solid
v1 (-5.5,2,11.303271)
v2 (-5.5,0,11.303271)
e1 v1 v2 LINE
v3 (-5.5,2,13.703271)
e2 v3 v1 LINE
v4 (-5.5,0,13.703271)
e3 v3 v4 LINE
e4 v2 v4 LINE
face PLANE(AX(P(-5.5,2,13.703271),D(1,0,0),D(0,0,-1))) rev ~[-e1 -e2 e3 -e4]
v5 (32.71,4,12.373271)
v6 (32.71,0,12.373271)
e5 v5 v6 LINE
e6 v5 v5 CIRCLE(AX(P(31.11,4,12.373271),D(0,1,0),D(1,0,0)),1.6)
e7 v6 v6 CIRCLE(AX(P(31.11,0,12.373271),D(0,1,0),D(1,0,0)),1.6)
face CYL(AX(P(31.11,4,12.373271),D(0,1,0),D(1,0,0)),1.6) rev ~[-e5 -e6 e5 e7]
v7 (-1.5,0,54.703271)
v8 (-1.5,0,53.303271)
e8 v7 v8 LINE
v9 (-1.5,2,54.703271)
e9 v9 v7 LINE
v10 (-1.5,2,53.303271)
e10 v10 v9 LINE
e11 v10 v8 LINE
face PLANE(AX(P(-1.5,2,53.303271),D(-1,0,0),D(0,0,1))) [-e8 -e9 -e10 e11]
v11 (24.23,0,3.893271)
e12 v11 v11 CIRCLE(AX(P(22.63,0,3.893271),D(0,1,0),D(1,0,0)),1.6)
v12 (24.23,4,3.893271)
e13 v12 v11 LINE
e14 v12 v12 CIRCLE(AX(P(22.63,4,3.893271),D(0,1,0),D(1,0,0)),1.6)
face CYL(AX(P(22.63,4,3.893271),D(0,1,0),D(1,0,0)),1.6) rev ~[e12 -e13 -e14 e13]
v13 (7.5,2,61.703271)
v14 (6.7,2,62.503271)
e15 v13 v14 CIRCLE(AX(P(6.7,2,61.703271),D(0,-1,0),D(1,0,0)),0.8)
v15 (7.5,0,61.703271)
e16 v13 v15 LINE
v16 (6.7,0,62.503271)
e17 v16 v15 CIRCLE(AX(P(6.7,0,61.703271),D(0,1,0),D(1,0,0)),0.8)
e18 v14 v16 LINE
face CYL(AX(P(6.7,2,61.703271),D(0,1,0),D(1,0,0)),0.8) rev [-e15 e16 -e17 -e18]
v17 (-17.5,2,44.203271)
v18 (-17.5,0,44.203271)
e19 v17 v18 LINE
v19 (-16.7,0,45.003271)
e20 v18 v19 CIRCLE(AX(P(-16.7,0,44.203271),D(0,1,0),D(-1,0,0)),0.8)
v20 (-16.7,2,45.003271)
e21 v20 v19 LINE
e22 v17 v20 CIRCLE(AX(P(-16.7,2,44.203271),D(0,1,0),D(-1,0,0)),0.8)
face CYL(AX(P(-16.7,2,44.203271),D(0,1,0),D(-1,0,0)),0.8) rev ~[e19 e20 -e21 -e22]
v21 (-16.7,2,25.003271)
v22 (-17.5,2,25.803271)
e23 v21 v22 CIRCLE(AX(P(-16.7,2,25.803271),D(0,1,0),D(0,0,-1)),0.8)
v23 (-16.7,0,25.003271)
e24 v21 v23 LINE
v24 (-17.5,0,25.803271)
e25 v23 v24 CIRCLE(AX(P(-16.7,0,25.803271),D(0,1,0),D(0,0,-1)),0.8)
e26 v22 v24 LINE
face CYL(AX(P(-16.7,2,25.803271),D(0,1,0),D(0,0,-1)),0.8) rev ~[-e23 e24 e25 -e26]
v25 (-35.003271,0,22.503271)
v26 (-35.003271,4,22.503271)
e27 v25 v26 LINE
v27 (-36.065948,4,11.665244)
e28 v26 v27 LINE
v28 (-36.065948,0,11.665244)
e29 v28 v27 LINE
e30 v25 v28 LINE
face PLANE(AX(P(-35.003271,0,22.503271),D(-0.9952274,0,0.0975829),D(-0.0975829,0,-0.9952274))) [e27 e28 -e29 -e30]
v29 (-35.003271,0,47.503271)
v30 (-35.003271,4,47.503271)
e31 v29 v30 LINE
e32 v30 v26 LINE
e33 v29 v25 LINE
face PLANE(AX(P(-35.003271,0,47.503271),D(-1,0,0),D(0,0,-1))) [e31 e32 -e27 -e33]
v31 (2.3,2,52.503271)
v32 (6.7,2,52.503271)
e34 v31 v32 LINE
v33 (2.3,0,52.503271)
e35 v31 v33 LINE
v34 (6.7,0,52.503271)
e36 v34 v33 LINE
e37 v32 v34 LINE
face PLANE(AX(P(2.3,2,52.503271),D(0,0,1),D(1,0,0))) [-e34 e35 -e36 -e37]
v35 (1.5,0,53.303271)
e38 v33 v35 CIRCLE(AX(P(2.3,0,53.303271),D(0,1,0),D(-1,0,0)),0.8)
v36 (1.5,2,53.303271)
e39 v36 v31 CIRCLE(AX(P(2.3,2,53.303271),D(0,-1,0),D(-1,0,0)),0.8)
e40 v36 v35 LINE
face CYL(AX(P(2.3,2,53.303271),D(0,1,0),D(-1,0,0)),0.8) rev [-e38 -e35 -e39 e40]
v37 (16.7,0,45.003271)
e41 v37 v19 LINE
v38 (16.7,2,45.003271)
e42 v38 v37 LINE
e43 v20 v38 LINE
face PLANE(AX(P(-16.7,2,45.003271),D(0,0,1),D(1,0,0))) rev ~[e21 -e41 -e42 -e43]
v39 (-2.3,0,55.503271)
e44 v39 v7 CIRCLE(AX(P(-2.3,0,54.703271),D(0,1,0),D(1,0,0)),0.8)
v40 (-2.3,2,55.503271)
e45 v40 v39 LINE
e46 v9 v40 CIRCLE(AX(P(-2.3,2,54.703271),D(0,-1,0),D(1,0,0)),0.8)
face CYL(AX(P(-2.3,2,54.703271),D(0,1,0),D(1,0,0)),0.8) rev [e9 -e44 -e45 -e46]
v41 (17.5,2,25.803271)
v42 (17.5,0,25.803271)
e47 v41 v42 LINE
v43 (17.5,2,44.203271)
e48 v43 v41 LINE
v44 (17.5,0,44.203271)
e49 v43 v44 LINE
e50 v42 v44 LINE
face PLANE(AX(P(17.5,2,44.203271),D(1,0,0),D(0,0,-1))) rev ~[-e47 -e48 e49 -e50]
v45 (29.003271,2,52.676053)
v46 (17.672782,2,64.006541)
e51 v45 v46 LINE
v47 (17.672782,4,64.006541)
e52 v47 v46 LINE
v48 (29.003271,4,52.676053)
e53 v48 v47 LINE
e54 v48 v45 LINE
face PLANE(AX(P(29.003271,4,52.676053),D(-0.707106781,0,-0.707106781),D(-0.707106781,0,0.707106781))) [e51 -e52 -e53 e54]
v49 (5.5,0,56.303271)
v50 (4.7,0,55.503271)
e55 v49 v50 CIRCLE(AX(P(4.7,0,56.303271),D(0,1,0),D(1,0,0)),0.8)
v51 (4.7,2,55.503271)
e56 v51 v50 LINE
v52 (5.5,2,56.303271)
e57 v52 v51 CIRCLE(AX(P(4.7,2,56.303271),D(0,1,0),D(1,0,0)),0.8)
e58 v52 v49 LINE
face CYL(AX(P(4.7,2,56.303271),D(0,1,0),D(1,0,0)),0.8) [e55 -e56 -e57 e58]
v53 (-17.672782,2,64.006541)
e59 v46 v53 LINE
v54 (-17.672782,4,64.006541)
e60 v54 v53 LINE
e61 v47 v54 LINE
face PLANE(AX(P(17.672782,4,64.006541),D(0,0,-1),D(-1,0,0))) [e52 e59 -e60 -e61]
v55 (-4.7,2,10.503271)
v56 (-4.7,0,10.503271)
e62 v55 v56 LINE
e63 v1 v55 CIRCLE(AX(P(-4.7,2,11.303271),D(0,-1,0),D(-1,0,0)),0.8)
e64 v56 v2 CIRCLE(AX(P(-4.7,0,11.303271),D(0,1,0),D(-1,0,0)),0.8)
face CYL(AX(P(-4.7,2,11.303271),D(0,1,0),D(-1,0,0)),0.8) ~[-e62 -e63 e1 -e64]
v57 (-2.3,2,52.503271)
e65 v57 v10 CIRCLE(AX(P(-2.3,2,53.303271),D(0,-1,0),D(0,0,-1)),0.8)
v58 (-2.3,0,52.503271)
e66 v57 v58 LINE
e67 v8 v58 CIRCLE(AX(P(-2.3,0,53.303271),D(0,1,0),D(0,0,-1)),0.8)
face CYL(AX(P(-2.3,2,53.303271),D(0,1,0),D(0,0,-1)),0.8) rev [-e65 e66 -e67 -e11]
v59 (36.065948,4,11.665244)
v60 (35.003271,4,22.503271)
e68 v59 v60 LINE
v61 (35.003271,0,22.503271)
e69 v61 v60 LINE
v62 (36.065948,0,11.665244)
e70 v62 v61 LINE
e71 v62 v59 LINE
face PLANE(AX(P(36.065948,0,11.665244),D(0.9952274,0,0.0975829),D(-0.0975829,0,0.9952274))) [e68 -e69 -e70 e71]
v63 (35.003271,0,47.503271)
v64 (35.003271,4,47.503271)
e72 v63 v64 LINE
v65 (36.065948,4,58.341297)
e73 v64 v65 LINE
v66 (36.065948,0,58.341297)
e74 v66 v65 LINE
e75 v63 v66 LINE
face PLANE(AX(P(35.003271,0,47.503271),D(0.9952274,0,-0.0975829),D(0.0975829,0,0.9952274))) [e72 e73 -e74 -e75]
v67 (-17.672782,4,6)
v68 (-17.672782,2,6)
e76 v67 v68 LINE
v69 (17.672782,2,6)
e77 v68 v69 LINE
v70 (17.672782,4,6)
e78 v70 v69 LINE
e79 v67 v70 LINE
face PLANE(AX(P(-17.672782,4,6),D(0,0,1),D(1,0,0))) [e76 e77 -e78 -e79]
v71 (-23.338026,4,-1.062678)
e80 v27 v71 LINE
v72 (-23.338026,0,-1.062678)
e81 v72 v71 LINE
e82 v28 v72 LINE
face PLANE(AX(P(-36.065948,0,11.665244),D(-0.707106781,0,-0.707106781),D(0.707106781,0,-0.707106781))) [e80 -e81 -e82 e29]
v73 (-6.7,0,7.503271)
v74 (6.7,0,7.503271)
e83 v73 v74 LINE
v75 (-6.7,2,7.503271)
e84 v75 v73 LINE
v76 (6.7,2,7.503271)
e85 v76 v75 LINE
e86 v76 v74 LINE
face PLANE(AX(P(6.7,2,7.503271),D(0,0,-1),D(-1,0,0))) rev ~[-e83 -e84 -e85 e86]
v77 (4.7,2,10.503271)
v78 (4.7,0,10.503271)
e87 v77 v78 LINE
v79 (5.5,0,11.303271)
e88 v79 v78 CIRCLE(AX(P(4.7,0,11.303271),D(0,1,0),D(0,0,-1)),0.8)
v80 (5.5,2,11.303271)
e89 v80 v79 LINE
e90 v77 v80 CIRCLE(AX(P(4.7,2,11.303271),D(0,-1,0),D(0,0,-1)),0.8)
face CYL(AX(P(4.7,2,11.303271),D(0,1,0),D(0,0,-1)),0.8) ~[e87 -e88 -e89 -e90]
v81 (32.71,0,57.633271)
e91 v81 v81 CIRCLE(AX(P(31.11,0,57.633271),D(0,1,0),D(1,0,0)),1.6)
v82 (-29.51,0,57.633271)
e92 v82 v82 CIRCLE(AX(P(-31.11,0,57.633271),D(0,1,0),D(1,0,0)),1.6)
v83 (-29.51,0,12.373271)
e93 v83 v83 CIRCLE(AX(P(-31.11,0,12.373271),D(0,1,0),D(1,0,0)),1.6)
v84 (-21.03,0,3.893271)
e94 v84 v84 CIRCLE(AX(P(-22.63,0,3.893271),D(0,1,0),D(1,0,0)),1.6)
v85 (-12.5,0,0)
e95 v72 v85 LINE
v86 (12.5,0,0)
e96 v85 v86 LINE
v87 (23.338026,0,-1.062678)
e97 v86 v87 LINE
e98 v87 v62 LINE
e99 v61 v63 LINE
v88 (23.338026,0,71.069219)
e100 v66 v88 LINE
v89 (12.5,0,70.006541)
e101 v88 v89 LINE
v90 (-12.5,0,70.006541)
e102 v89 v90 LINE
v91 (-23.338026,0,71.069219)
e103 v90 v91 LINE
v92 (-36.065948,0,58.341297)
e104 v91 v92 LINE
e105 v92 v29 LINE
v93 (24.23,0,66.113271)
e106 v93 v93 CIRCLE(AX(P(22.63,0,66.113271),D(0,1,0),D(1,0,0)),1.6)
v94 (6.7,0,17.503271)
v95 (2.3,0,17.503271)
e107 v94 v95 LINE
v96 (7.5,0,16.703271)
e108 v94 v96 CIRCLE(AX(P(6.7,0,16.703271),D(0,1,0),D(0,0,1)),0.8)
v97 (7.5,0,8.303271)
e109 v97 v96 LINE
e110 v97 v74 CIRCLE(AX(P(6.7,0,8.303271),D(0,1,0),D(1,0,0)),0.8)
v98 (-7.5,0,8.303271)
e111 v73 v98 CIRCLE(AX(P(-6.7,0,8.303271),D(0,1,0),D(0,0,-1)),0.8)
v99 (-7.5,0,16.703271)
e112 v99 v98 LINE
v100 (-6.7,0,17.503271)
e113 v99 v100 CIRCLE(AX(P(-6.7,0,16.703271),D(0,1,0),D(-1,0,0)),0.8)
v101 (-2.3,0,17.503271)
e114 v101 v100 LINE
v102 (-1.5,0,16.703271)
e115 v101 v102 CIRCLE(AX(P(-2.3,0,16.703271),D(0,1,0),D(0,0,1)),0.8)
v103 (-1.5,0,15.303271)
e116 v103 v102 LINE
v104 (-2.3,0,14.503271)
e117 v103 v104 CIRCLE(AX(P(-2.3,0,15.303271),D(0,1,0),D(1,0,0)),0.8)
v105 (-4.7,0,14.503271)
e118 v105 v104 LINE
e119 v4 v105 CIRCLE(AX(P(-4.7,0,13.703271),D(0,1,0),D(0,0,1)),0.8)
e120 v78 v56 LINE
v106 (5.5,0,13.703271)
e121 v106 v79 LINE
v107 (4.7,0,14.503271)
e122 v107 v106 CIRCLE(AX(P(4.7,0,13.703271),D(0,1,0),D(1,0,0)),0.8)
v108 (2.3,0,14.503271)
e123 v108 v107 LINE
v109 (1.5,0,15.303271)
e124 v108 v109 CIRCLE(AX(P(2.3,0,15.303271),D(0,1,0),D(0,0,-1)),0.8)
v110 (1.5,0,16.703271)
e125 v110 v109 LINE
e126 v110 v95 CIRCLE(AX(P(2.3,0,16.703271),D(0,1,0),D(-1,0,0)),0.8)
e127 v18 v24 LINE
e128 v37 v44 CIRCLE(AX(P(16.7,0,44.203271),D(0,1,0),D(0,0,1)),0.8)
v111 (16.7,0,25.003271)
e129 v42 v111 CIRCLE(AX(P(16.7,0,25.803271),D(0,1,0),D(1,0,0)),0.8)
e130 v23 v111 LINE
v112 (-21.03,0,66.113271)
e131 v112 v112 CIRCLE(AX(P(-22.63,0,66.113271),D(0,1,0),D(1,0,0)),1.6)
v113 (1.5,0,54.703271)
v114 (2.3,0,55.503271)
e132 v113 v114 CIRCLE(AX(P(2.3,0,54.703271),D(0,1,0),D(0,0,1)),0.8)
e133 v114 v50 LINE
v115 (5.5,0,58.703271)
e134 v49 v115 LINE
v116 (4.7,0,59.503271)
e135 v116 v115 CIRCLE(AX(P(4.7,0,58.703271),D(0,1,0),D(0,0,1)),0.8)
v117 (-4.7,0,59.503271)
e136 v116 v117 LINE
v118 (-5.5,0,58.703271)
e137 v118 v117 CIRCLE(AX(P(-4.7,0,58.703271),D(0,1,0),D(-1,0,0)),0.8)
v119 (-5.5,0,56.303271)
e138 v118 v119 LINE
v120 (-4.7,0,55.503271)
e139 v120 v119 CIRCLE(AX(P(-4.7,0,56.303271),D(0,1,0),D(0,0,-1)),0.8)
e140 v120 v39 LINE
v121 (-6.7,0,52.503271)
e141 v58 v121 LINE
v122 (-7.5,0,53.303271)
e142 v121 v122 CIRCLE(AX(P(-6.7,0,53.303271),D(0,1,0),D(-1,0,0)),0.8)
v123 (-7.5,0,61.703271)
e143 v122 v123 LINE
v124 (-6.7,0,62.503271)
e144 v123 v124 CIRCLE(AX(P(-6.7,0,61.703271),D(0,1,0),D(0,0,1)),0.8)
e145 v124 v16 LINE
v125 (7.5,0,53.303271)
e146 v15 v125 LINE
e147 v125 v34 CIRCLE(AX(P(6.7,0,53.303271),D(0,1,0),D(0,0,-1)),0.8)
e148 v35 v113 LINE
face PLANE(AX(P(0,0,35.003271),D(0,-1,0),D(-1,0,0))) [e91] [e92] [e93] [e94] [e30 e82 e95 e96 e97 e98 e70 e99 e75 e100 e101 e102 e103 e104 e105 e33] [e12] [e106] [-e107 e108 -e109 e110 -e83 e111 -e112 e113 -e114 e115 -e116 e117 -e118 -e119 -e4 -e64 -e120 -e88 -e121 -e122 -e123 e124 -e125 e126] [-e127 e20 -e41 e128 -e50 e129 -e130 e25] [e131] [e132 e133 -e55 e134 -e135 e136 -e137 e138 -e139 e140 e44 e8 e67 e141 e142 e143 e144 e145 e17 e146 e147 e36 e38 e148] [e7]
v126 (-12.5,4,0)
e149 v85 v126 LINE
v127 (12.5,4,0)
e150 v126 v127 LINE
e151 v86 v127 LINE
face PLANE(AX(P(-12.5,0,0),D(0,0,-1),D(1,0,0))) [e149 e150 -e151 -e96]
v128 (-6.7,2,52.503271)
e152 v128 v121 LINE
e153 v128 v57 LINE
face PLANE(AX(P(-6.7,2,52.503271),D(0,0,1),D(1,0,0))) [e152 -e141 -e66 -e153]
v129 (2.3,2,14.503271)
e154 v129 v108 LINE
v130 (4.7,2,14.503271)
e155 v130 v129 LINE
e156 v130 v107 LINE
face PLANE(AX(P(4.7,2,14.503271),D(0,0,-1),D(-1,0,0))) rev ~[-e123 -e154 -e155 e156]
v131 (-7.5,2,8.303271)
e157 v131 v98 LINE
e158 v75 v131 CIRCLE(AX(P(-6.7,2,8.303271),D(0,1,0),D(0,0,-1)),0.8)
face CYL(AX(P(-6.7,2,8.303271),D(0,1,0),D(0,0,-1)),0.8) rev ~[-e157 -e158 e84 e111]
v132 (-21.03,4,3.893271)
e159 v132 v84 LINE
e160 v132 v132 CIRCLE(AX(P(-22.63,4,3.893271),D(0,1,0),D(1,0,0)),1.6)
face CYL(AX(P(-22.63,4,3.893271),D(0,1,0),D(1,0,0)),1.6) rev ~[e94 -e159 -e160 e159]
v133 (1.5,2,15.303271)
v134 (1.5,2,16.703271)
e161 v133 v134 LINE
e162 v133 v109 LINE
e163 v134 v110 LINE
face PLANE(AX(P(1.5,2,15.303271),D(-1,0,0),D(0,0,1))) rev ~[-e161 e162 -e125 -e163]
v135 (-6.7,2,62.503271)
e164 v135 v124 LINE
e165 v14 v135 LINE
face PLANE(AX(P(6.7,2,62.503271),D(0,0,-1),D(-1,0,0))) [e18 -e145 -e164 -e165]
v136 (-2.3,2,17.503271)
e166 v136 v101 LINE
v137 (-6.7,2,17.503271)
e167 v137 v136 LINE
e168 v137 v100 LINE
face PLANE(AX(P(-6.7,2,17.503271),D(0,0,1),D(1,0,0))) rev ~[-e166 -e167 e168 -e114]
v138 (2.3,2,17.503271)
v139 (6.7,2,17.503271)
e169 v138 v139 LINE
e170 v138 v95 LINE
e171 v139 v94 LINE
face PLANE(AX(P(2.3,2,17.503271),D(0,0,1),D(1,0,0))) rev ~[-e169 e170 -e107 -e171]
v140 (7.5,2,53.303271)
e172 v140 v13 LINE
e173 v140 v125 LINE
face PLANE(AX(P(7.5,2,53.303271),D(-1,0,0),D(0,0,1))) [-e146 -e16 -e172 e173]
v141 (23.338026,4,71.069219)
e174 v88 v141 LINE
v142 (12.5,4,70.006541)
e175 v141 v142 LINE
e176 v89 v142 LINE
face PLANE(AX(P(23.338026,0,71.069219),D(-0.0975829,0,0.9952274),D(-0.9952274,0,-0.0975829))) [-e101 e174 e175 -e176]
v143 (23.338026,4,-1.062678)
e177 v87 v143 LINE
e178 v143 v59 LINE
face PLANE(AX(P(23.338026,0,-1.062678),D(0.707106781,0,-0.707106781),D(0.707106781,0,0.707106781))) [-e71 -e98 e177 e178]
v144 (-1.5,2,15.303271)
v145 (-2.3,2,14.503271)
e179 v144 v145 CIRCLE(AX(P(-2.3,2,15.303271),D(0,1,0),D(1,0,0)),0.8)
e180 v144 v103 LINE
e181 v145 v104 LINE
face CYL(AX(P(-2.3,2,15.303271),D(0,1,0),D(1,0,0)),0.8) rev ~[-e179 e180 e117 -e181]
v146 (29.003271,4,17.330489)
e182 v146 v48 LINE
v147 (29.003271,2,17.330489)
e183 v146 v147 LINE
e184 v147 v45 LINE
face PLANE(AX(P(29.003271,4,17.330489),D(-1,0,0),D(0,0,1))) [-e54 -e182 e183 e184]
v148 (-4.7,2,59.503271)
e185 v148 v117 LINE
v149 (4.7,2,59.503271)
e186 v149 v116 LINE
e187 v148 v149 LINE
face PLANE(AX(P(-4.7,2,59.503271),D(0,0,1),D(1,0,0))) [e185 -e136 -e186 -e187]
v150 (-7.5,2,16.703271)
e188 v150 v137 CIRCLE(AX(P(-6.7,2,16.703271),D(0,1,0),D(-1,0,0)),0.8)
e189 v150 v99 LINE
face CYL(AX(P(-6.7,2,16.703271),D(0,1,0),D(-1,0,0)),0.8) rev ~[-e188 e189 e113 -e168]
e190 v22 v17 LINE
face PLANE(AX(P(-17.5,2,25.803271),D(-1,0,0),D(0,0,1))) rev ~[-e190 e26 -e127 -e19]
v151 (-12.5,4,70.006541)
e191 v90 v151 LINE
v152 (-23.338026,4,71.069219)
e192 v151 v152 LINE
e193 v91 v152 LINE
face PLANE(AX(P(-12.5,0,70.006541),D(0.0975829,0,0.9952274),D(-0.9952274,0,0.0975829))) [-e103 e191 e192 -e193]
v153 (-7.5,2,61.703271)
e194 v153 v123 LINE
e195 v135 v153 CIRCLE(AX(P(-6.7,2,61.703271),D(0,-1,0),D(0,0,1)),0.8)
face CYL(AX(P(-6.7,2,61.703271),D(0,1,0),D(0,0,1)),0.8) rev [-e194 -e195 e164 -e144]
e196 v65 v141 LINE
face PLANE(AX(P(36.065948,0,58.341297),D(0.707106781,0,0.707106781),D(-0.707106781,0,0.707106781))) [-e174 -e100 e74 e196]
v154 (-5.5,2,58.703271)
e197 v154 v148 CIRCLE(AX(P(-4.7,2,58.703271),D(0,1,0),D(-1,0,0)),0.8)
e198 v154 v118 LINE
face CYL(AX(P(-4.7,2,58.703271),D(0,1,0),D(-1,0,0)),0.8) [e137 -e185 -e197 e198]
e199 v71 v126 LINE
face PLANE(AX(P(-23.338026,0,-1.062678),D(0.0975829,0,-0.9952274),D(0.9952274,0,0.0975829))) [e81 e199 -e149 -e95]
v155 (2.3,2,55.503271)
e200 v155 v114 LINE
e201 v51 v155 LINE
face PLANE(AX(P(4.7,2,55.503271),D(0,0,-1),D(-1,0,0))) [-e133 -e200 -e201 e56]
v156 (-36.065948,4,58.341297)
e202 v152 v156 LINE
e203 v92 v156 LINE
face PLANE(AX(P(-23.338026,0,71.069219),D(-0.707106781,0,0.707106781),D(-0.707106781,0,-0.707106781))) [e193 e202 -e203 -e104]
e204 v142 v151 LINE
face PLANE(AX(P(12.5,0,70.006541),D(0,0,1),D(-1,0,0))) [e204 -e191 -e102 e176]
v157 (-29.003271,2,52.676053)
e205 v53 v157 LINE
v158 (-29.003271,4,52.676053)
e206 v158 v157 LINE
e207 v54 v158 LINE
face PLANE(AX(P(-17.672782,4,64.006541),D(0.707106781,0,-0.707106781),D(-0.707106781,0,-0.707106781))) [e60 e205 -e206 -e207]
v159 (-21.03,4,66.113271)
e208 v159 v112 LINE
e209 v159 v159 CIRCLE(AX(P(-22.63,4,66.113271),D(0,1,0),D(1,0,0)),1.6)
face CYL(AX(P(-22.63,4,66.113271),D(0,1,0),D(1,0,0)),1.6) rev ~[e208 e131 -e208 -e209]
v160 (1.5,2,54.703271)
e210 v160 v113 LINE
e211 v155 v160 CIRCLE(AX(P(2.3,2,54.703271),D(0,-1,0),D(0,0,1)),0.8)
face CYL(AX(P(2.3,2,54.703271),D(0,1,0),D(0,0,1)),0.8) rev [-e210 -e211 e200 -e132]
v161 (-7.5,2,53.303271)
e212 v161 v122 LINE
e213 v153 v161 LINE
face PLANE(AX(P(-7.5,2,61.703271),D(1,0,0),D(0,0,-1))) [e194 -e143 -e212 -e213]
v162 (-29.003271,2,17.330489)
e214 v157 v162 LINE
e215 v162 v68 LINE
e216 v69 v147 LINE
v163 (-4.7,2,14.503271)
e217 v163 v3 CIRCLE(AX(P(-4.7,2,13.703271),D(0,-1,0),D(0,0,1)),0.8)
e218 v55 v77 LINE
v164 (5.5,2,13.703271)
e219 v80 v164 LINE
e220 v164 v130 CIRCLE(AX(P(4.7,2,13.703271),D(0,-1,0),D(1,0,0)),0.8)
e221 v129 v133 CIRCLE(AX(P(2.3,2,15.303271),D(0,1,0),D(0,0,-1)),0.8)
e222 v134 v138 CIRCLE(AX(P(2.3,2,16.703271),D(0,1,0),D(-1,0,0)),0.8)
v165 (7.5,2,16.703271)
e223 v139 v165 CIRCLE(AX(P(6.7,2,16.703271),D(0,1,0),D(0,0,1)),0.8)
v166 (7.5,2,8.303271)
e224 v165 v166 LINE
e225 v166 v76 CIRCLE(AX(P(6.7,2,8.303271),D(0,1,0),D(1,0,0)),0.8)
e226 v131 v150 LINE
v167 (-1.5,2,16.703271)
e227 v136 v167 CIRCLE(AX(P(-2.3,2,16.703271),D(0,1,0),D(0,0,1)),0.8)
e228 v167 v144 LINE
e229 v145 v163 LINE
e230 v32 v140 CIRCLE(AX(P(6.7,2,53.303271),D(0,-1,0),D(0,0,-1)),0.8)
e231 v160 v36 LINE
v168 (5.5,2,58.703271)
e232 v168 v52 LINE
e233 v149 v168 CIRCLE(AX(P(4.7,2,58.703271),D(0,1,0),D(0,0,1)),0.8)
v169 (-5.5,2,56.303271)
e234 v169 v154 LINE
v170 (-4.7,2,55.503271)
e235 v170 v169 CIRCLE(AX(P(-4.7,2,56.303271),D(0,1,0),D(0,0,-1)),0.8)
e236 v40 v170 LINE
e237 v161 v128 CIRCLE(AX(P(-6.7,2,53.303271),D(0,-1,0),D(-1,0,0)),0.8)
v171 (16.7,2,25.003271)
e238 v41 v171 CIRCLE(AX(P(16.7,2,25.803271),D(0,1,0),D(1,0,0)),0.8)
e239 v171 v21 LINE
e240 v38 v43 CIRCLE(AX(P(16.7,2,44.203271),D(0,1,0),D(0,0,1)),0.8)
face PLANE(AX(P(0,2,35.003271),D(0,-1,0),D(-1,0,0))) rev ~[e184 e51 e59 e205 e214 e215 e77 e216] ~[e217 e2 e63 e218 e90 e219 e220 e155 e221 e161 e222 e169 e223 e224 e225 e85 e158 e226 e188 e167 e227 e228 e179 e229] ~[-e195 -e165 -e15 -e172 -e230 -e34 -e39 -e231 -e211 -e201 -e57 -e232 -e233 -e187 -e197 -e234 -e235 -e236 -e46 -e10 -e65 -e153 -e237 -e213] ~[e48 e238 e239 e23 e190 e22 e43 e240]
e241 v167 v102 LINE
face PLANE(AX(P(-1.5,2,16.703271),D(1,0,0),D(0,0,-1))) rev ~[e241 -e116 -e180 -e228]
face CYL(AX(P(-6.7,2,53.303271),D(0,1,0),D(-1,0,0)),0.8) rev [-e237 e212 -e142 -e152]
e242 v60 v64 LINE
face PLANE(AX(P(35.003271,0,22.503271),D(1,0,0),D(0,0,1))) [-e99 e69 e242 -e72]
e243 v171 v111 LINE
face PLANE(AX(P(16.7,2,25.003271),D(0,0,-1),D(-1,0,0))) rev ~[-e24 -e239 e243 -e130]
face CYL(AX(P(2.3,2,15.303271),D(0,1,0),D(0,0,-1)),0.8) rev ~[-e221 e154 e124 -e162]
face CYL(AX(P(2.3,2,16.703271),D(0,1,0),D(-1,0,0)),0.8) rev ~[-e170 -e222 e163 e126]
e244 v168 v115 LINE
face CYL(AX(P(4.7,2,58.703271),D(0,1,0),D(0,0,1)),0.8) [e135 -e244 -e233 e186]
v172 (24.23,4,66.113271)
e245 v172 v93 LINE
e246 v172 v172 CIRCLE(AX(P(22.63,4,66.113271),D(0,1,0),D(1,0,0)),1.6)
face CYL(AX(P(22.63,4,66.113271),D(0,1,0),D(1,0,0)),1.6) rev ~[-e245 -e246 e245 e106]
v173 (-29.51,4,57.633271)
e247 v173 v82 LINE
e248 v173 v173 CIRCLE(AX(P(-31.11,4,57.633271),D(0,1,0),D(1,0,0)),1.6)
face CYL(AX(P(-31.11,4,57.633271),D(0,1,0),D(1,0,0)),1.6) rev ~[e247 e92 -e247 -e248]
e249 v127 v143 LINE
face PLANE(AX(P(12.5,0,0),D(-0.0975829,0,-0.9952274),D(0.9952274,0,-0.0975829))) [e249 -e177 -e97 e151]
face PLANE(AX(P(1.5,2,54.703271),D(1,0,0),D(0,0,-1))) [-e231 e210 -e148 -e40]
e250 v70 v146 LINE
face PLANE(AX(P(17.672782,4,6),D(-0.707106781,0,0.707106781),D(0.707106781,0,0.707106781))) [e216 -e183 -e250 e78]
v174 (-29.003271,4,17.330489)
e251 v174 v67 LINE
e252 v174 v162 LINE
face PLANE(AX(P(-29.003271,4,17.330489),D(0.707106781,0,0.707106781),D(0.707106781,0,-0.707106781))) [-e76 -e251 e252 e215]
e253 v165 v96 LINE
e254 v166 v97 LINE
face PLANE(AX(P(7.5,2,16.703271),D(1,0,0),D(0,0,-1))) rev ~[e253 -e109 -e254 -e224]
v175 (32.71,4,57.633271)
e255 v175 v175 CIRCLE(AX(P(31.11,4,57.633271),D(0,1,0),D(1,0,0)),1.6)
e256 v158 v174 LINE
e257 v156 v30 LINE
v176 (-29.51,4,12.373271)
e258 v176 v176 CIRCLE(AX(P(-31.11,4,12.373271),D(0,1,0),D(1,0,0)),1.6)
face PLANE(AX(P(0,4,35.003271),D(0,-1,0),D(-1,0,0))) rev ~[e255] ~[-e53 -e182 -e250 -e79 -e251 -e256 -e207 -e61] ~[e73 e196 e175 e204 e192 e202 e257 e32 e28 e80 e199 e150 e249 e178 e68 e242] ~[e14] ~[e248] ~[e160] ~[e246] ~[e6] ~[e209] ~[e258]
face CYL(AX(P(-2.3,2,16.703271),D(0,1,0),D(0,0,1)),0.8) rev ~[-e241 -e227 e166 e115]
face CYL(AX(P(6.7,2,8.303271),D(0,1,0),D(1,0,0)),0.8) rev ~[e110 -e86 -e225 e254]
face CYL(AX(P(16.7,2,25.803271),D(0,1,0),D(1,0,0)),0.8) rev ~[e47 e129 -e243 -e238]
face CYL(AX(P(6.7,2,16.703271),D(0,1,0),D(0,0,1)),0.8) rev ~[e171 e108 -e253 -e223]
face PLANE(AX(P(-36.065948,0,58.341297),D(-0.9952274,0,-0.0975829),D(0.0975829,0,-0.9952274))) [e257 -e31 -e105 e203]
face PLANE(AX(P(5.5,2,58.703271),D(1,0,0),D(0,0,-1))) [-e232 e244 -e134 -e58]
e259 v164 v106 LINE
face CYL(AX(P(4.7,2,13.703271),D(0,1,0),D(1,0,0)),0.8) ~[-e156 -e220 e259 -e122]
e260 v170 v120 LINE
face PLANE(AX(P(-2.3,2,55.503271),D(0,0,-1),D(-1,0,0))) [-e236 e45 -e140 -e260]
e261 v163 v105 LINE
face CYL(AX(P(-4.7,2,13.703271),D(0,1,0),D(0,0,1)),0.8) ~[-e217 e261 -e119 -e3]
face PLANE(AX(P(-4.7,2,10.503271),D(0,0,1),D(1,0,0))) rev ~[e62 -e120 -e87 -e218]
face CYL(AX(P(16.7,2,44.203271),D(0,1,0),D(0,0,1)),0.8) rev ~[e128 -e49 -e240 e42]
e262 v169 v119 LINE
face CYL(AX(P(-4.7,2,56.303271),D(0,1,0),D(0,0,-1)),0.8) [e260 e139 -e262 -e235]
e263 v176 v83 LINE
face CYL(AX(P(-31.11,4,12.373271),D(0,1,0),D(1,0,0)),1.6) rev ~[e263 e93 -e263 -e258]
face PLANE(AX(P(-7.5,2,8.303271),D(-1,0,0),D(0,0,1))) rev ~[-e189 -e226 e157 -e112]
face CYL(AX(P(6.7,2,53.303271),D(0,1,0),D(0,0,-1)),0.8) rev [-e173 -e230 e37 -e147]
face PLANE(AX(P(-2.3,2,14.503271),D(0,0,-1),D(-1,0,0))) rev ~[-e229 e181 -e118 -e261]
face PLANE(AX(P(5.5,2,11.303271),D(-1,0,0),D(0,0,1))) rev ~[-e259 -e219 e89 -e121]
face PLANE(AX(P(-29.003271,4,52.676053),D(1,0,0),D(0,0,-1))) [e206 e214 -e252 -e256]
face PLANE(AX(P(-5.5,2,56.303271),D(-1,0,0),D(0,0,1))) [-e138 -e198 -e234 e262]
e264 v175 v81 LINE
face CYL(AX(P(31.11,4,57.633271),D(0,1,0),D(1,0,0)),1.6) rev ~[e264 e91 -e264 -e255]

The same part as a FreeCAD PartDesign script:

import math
import FreeCAD as App
import Part
import Sketcher
from FreeCAD import Vector
Q = App.Units.Quantity


def add_polygon(sketch, points):
    """Adds a closed chain of lines whose ends are joined by coincident constraints."""
    first, n = sketch.GeometryCount, len(points)
    for a, b in zip(points, points[1:] + points[:1]):
        sketch.addGeometry(Part.LineSegment(App.Vector(*a, 0), App.Vector(*b, 0)), False)
    for i in range(n):
        sketch.addConstraint(Sketcher.Constraint("Coincident", first + i, 2, first + (i + 1) % n, 1))

doc = App.newDocument("Part")
params = doc.addObject("Spreadsheet::Sheet", "Params")
for row, (alias, value) in enumerate([
    ("sketch1_width", "25 mm"),
    ("sketch1_length", "18 mm"),
    ("sketch1_length2", "10.89 mm"),
    ("pad1_length", "4 mm"),
    ("sketch2_diameter", "3.2 mm"),
    ("pocket2_length", "2 mm"),
    ("sketch4_radius", "0.8 mm"),
    ("sketch4_width", "33.4 mm"),
    ("sketch4_width2", "2.4 mm"),
    ("sketch4_width3", "9.4 mm"),
    ("sketch4_width4", "4.4 mm"),
], start=1):
    params.set(f"A{row}", alias)
    params.set(f"B{row}", "=" + value)
    params.setAlias(f"B{row}", alias)

body = doc.addObject("PartDesign::Body", "Body")

# Sketch on XZ plane
sketch1 = body.newObject("Sketcher::SketchObject", "Sketch")
sketch1.AttachmentSupport = (doc.getObject("XZ_Plane"), [""])
sketch1.MapMode = "FlatFace"
add_polygon(sketch1, [(12.5, 0), (-12.5, 0), (-23.338026, -1.062678), (-36.065948, 11.665244), (-35.003271, 22.503271), (-35.003271, 47.503271), (-36.065948, 58.341297), (-23.338026, 71.069219), (-12.5, 70.006541), (12.5, 70.006541), (23.338026, 71.069219), (36.065948, 58.341297), (35.003271, 47.503271), (35.003271, 22.503271), (36.065948, 11.665244), (23.338026, -1.062678)])  # lines 0-15
sketch1.addConstraint(Sketcher.Constraint("Horizontal", 0))
sketch1.addConstraint(Sketcher.Constraint("Vertical", 4))
sketch1.addConstraint(Sketcher.Constraint("Horizontal", 8))
sketch1.addConstraint(Sketcher.Constraint("Vertical", 12))
sketch1.addConstraint(Sketcher.Constraint("Symmetric", 0, 2, 15, 2, -1, 1))
sketch1.addConstraint(Sketcher.Constraint("Symmetric", 6, 2, 9, 2, -2))
sketch1.addConstraint(Sketcher.Constraint("Symmetric", 5, 2, 10, 2, -2))
sketch1.addConstraint(Sketcher.Constraint("Symmetric", 4, 2, 11, 2, -2))
sketch1.addConstraint(Sketcher.Constraint("Symmetric", 2, 2, 13, 2, -2))
sketch1.addConstraint(Sketcher.Constraint("Symmetric", 1, 2, 14, 2, -2))
sketch1.addConstraint(Sketcher.Constraint("Perpendicular", 1, 5))
sketch1.addConstraint(Sketcher.Constraint("Perpendicular", 2, 6))
sketch1.addConstraint(Sketcher.Constraint("Perpendicular", 3, 7))
sketch1.addConstraint(Sketcher.Constraint("Perpendicular", 5, 9))
sketch1.addConstraint(Sketcher.Constraint("Perpendicular", 6, 10))
sketch1.addConstraint(Sketcher.Constraint("Perpendicular", 7, 11))
sketch1.addConstraint(Sketcher.Constraint("Perpendicular", 9, 13))
sketch1.addConstraint(Sketcher.Constraint("Vertical", 2, 2, 5, 2))
sketch1.addConstraint(Sketcher.Constraint("Vertical", 1, 2, 6, 2))
sketch1.addConstraint(Sketcher.Constraint("Vertical", 0, 2, 7, 2))
sketch1.addConstraint(Sketcher.Constraint("Equal", 8, 4))
sketch1.addConstraint(Sketcher.Constraint("Equal", 1, 3))
sketch1.addConstraint(Sketcher.Constraint("DistanceX", 0, 2, 0, 1, Q("25 mm")))
sketch1.addConstraint(Sketcher.Constraint("Distance", 2, Q("18 mm")))
sketch1.addConstraint(Sketcher.Constraint("Angle", 1, Q("-174.4 deg")))
sketch1.addConstraint(Sketcher.Constraint("Distance", 1, Q("10.89 mm")))
sketch1.setExpression("Constraints[38]", "Params.sketch1_width")
sketch1.setExpression("Constraints[39]", "Params.sketch1_length")
sketch1.setExpression("Constraints[41]", "Params.sketch1_length2")
pad1 = body.newObject("PartDesign::Pad", "Pad")
pad1.Profile = sketch1
pad1.setExpression("Length", "Params.pad1_length")
pad1.Reversed = True

# Sketch on XZ plane
sketch2 = body.newObject("Sketcher::SketchObject", "Sketch001")
sketch2.AttachmentSupport = (doc.getObject("XZ_Plane"), [""])
sketch2.MapMode = "FlatFace"
sketch2.AttachmentOffset = App.Placement(Vector(0, 0, -4), App.Rotation())
sketch2.addGeometry(Part.Circle(Vector(22.6, 3.9, 0), Vector(0, 0, 1), 1.6), False)
sketch2.addGeometry(Part.Circle(Vector(31.1, 12.4, 0), Vector(0, 0, 1), 1.6), False)
sketch2.addGeometry(Part.Circle(Vector(-31.1, 12.4, 0), Vector(0, 0, 1), 1.6), False)
sketch2.addGeometry(Part.Circle(Vector(-22.6, 3.9, 0), Vector(0, 0, 1), 1.6), False)
sketch2.addGeometry(Part.Circle(Vector(31.1, 57.6, 0), Vector(0, 0, 1), 1.6), False)
sketch2.addGeometry(Part.Circle(Vector(22.6, 66.1, 0), Vector(0, 0, 1), 1.6), False)
sketch2.addGeometry(Part.Circle(Vector(-22.6, 66.1, 0), Vector(0, 0, 1), 1.6), False)
sketch2.addGeometry(Part.Circle(Vector(-31.1, 57.6, 0), Vector(0, 0, 1), 1.6), False)
sketch2.addConstraint(Sketcher.Constraint("Equal", 0, 1))
sketch2.addConstraint(Sketcher.Constraint("Equal", 1, 2))
sketch2.addConstraint(Sketcher.Constraint("Equal", 2, 3))
sketch2.addConstraint(Sketcher.Constraint("Equal", 3, 4))
sketch2.addConstraint(Sketcher.Constraint("Equal", 4, 5))
sketch2.addConstraint(Sketcher.Constraint("Equal", 5, 6))
sketch2.addConstraint(Sketcher.Constraint("Equal", 6, 7))
sketch2.addConstraint(Sketcher.Constraint("Symmetric", 1, 3, 2, 3, -2))
sketch2.addConstraint(Sketcher.Constraint("Symmetric", 0, 3, 3, 3, -2))
sketch2.addConstraint(Sketcher.Constraint("Symmetric", 5, 3, 6, 3, -2))
sketch2.addConstraint(Sketcher.Constraint("Symmetric", 4, 3, 7, 3, -2))
sketch2.addConstraint(Sketcher.Constraint("Vertical", 1, 3, 4, 3))
sketch2.addConstraint(Sketcher.Constraint("Vertical", 0, 3, 5, 3))
sketch2.addConstraint(Sketcher.Constraint("Diameter", 0, Q("3.2 mm")))
sketch2.addConstraint(Sketcher.Constraint("DistanceX", -1, 1, 0, 3, Q("22.63 mm")))
sketch2.addConstraint(Sketcher.Constraint("DistanceX", -1, 1, 1, 3, Q("31.11 mm")))
sketch2.addConstraint(Sketcher.Constraint("DistanceY", 0, 3, 1, 3, Q("8.48 mm")))
sketch2.addConstraint(Sketcher.Constraint("DistanceY", 1, 3, 4, 3, Q("45.26 mm")))
sketch2.addConstraint(Sketcher.Constraint("DistanceY", 4, 3, 5, 3, Q("8.48 mm")))
sketch2.addConstraint(Sketcher.Constraint("DistanceY", -1, 1, 0, 3, Q("3.893271 mm")))
sketch2.setExpression("Constraints[13]", "Params.sketch2_diameter")
pocket1 = body.newObject("PartDesign::Pocket", "Pocket")
pocket1.Profile = sketch2
pocket1.Type = "ThroughAll"
pocket1.Reversed = True

# Sketch on XZ plane
sketch3 = body.newObject("Sketcher::SketchObject", "Sketch002")
sketch3.AttachmentSupport = (doc.getObject("XZ_Plane"), [""])
sketch3.MapMode = "FlatFace"
sketch3.AttachmentOffset = App.Placement(Vector(0, 0, -4), App.Rotation())
add_polygon(sketch3, [(18, 6), (-18, 6), (-29, 17), (-29, 53), (-18, 64), (18, 64), (29, 53), (29, 17)])  # lines 0-7
sketch3.addConstraint(Sketcher.Constraint("Horizontal", 0))
sketch3.addConstraint(Sketcher.Constraint("Vertical", 2))
sketch3.addConstraint(Sketcher.Constraint("Horizontal", 4))
sketch3.addConstraint(Sketcher.Constraint("Vertical", 6))
sketch3.addConstraint(Sketcher.Constraint("Symmetric", 2, 2, 5, 2, -2))
sketch3.addConstraint(Sketcher.Constraint("Perpendicular", 1, 3))
sketch3.addConstraint(Sketcher.Constraint("Perpendicular", 3, 5))
sketch3.addConstraint(Sketcher.Constraint("Perpendicular", 5, 7))
sketch3.addConstraint(Sketcher.Constraint("Horizontal", 1, 2, 6, 2))
sketch3.addConstraint(Sketcher.Constraint("Vertical", 0, 2, 3, 2))
sketch3.addConstraint(Sketcher.Constraint("Vertical", 4, 2, 7, 2))
sketch3.addConstraint(Sketcher.Constraint("Equal", 4, 2))
sketch3.addConstraint(Sketcher.Constraint("DistanceY", -1, 1, 0, 2, Q("6 mm")))
sketch3.addConstraint(Sketcher.Constraint("Distance", 1, Q("16.023731 mm")))
sketch3.addConstraint(Sketcher.Constraint("DistanceX", 0, 2, 0, 1, Q("35.345564 mm")))
pocket2 = body.newObject("PartDesign::Pocket", "Pocket001")
pocket2.Profile = sketch3
pocket2.setExpression("Length", "Params.pocket2_length")
pocket2.Reversed = True

# Sketch on XZ plane
sketch4 = body.newObject("Sketcher::SketchObject", "Sketch003")
sketch4.AttachmentSupport = (doc.getObject("XZ_Plane"), [""])
sketch4.MapMode = "FlatFace"
sketch4.AttachmentOffset = App.Placement(Vector(0, 0, -2), App.Rotation())
sketch4.addGeometry(Part.LineSegment(Vector(-16.7, 45, 0), Vector(16.7, 45, 0)), False)
sketch4.addGeometry(Part.ArcOfCircle(Part.Circle(Vector(16.7, 44.2, 0), Vector(0, 0, 1), 0.8), math.radians(0), math.radians(90)), False)
sketch4.addGeometry(Part.LineSegment(Vector(17.5, 44.2, 0), Vector(17.5, 25.8, 0)), False)
sketch4.addGeometry(Part.ArcOfCircle(Part.Circle(Vector(16.7, 25.8, 0), Vector(0, 0, 1), 0.8), math.radians(-90), math.radians(0)), False)
sketch4.addGeometry(Part.LineSegment(Vector(16.7, 25, 0), Vector(-16.7, 25, 0)), False)
sketch4.addGeometry(Part.ArcOfCircle(Part.Circle(Vector(-16.7, 25.8, 0), Vector(0, 0, 1), 0.8), math.radians(180), math.radians(270)), False)
sketch4.addGeometry(Part.LineSegment(Vector(-17.5, 25.8, 0), Vector(-17.5, 44.2, 0)), False)
sketch4.addGeometry(Part.ArcOfCircle(Part.Circle(Vector(-16.7, 44.2, 0), Vector(0, 0, 1), 0.8), math.radians(90), math.radians(180)), False)
sketch4.addGeometry(Part.LineSegment(Vector(-1.5, 16.7, 0), Vector(-1.5, 15.3, 0)), False)
sketch4.addGeometry(Part.ArcOfCircle(Part.Circle(Vector(-2.3, 15.3, 0), Vector(0, 0, 1), 0.8), math.radians(-90), math.radians(0)), False)
sketch4.addGeometry(Part.LineSegment(Vector(-2.3, 14.5, 0), Vector(-4.7, 14.5, 0)), False)
sketch4.addGeometry(Part.ArcOfCircle(Part.Circle(Vector(-4.7, 13.7, 0), Vector(0, 0, 1), 0.8), math.radians(90), math.radians(180)), False)
sketch4.addGeometry(Part.LineSegment(Vector(-5.5, 13.7, 0), Vector(-5.5, 11.3, 0)), False)
sketch4.addGeometry(Part.ArcOfCircle(Part.Circle(Vector(-4.7, 11.3, 0), Vector(0, 0, 1), 0.8), math.radians(180), math.radians(270)), False)
sketch4.addGeometry(Part.LineSegment(Vector(-4.7, 10.5, 0), Vector(4.7, 10.5, 0)), False)
sketch4.addGeometry(Part.ArcOfCircle(Part.Circle(Vector(4.7, 11.3, 0), Vector(0, 0, 1), 0.8), math.radians(-90), math.radians(0)), False)
sketch4.addGeometry(Part.LineSegment(Vector(5.5, 11.3, 0), Vector(5.5, 13.7, 0)), False)
sketch4.addGeometry(Part.ArcOfCircle(Part.Circle(Vector(4.7, 13.7, 0), Vector(0, 0, 1), 0.8), math.radians(0), math.radians(90)), False)
sketch4.addGeometry(Part.LineSegment(Vector(4.7, 14.5, 0), Vector(2.3, 14.5, 0)), False)
sketch4.addGeometry(Part.ArcOfCircle(Part.Circle(Vector(2.3, 15.3, 0), Vector(0, 0, 1), 0.8), math.radians(180), math.radians(270)), False)
sketch4.addGeometry(Part.LineSegment(Vector(1.5, 15.3, 0), Vector(1.5, 16.7, 0)), False)
sketch4.addGeometry(Part.ArcOfCircle(Part.Circle(Vector(2.3, 16.7, 0), Vector(0, 0, 1), 0.8), math.radians(90), math.radians(180)), False)
sketch4.addGeometry(Part.LineSegment(Vector(2.3, 17.5, 0), Vector(6.7, 17.5, 0)), False)
sketch4.addGeometry(Part.ArcOfCircle(Part.Circle(Vector(6.7, 16.7, 0), Vector(0, 0, 1), 0.8), math.radians(0), math.radians(90)), False)
sketch4.addGeometry(Part.LineSegment(Vector(7.5, 16.7, 0), Vector(7.5, 8.3, 0)), False)
sketch4.addGeometry(Part.ArcOfCircle(Part.Circle(Vector(6.7, 8.3, 0), Vector(0, 0, 1), 0.8), math.radians(-90), math.radians(0)), False)
sketch4.addGeometry(Part.LineSegment(Vector(6.7, 7.5, 0), Vector(-6.7, 7.5, 0)), False)
sketch4.addGeometry(Part.ArcOfCircle(Part.Circle(Vector(-6.7, 8.3, 0), Vector(0, 0, 1), 0.8), math.radians(180), math.radians(270)), False)
sketch4.addGeometry(Part.LineSegment(Vector(-7.5, 8.3, 0), Vector(-7.5, 16.7, 0)), False)
sketch4.addGeometry(Part.ArcOfCircle(Part.Circle(Vector(-6.7, 16.7, 0), Vector(0, 0, 1), 0.8), math.radians(90), math.radians(180)), False)
sketch4.addGeometry(Part.LineSegment(Vector(-6.7, 17.5, 0), Vector(-2.3, 17.5, 0)), False)
sketch4.addGeometry(Part.ArcOfCircle(Part.Circle(Vector(-2.3, 16.7, 0), Vector(0, 0, 1), 0.8), math.radians(0), math.radians(90)), False)
sketch4.addGeometry(Part.LineSegment(Vector(-5.5, 58.7, 0), Vector(-5.5, 56.3, 0)), False)
sketch4.addGeometry(Part.ArcOfCircle(Part.Circle(Vector(-4.7, 56.3, 0), Vector(0, 0, 1), 0.8), math.radians(180), math.radians(270)), False)
sketch4.addGeometry(Part.LineSegment(Vector(-4.7, 55.5, 0), Vector(-2.3, 55.5, 0)), False)
sketch4.addGeometry(Part.ArcOfCircle(Part.Circle(Vector(-2.3, 54.7, 0), Vector(0, 0, 1), 0.8), math.radians(0), math.radians(90)), False)
sketch4.addGeometry(Part.LineSegment(Vector(-1.5, 54.7, 0), Vector(-1.5, 53.3, 0)), False)
sketch4.addGeometry(Part.ArcOfCircle(Part.Circle(Vector(-2.3, 53.3, 0), Vector(0, 0, 1), 0.8), math.radians(-90), math.radians(0)), False)
sketch4.addGeometry(Part.LineSegment(Vector(-2.3, 52.5, 0), Vector(-6.7, 52.5, 0)), False)
sketch4.addGeometry(Part.ArcOfCircle(Part.Circle(Vector(-6.7, 53.3, 0), Vector(0, 0, 1), 0.8), math.radians(180), math.radians(270)), False)
sketch4.addGeometry(Part.LineSegment(Vector(-7.5, 53.3, 0), Vector(-7.5, 61.7, 0)), False)
sketch4.addGeometry(Part.ArcOfCircle(Part.Circle(Vector(-6.7, 61.7, 0), Vector(0, 0, 1), 0.8), math.radians(90), math.radians(180)), False)
sketch4.addGeometry(Part.LineSegment(Vector(-6.7, 62.5, 0), Vector(6.7, 62.5, 0)), False)
sketch4.addGeometry(Part.ArcOfCircle(Part.Circle(Vector(6.7, 61.7, 0), Vector(0, 0, 1), 0.8), math.radians(0), math.radians(90)), False)
sketch4.addGeometry(Part.LineSegment(Vector(7.5, 61.7, 0), Vector(7.5, 53.3, 0)), False)
sketch4.addGeometry(Part.ArcOfCircle(Part.Circle(Vector(6.7, 53.3, 0), Vector(0, 0, 1), 0.8), math.radians(-90), math.radians(0)), False)
sketch4.addGeometry(Part.LineSegment(Vector(6.7, 52.5, 0), Vector(2.3, 52.5, 0)), False)
sketch4.addGeometry(Part.ArcOfCircle(Part.Circle(Vector(2.3, 53.3, 0), Vector(0, 0, 1), 0.8), math.radians(180), math.radians(270)), False)
sketch4.addGeometry(Part.LineSegment(Vector(1.5, 53.3, 0), Vector(1.5, 54.7, 0)), False)
sketch4.addGeometry(Part.ArcOfCircle(Part.Circle(Vector(2.3, 54.7, 0), Vector(0, 0, 1), 0.8), math.radians(90), math.radians(180)), False)
sketch4.addGeometry(Part.LineSegment(Vector(2.3, 55.5, 0), Vector(4.7, 55.5, 0)), False)
sketch4.addGeometry(Part.ArcOfCircle(Part.Circle(Vector(4.7, 56.3, 0), Vector(0, 0, 1), 0.8), math.radians(-90), math.radians(0)), False)
sketch4.addGeometry(Part.LineSegment(Vector(5.5, 56.3, 0), Vector(5.5, 58.7, 0)), False)
sketch4.addGeometry(Part.ArcOfCircle(Part.Circle(Vector(4.7, 58.7, 0), Vector(0, 0, 1), 0.8), math.radians(0), math.radians(90)), False)
sketch4.addGeometry(Part.LineSegment(Vector(4.7, 59.5, 0), Vector(-4.7, 59.5, 0)), False)
sketch4.addGeometry(Part.ArcOfCircle(Part.Circle(Vector(-4.7, 58.7, 0), Vector(0, 0, 1), 0.8), math.radians(90), math.radians(180)), False)
sketch4.addConstraint(Sketcher.Constraint("Tangent", 0, 2, 1, 2))
sketch4.addConstraint(Sketcher.Constraint("Tangent", 1, 1, 2, 1))
sketch4.addConstraint(Sketcher.Constraint("Tangent", 2, 2, 3, 2))
sketch4.addConstraint(Sketcher.Constraint("Tangent", 3, 1, 4, 1))
sketch4.addConstraint(Sketcher.Constraint("Tangent", 4, 2, 5, 2))
sketch4.addConstraint(Sketcher.Constraint("Tangent", 5, 1, 6, 1))
sketch4.addConstraint(Sketcher.Constraint("Tangent", 6, 2, 7, 2))
sketch4.addConstraint(Sketcher.Constraint("Tangent", 7, 1, 0, 1))
sketch4.addConstraint(Sketcher.Constraint("Tangent", 8, 2, 9, 2))
sketch4.addConstraint(Sketcher.Constraint("Tangent", 9, 1, 10, 1))
sketch4.addConstraint(Sketcher.Constraint("Tangent", 10, 2, 11, 1))
sketch4.addConstraint(Sketcher.Constraint("Tangent", 11, 2, 12, 1))
sketch4.addConstraint(Sketcher.Constraint("Tangent", 12, 2, 13, 1))
sketch4.addConstraint(Sketcher.Constraint("Tangent", 13, 2, 14, 1))
sketch4.addConstraint(Sketcher.Constraint("Tangent", 14, 2, 15, 1))
sketch4.addConstraint(Sketcher.Constraint("Tangent", 15, 2, 16, 1))
sketch4.addConstraint(Sketcher.Constraint("Tangent", 16, 2, 17, 1))
sketch4.addConstraint(Sketcher.Constraint("Tangent", 17, 2, 18, 1))
sketch4.addConstraint(Sketcher.Constraint("Tangent", 18, 2, 19, 2))
sketch4.addConstraint(Sketcher.Constraint("Tangent", 19, 1, 20, 1))
sketch4.addConstraint(Sketcher.Constraint("Tangent", 20, 2, 21, 2))
sketch4.addConstraint(Sketcher.Constraint("Tangent", 21, 1, 22, 1))
sketch4.addConstraint(Sketcher.Constraint("Tangent", 22, 2, 23, 2))
sketch4.addConstraint(Sketcher.Constraint("Tangent", 23, 1, 24, 1))
sketch4.addConstraint(Sketcher.Constraint("Tangent", 24, 2, 25, 2))
sketch4.addConstraint(Sketcher.Constraint("Tangent", 25, 1, 26, 1))
sketch4.addConstraint(Sketcher.Constraint("Tangent", 26, 2, 27, 2))
sketch4.addConstraint(Sketcher.Constraint("Tangent", 27, 1, 28, 1))
sketch4.addConstraint(Sketcher.Constraint("Tangent", 28, 2, 29, 2))
sketch4.addConstraint(Sketcher.Constraint("Tangent", 29, 1, 30, 1))
sketch4.addConstraint(Sketcher.Constraint("Tangent", 30, 2, 31, 2))
sketch4.addConstraint(Sketcher.Constraint("Tangent", 31, 1, 8, 1))
sketch4.addConstraint(Sketcher.Constraint("Tangent", 32, 2, 33, 1))
sketch4.addConstraint(Sketcher.Constraint("Tangent", 33, 2, 34, 1))
sketch4.addConstraint(Sketcher.Constraint("Tangent", 34, 2, 35, 2))
sketch4.addConstraint(Sketcher.Constraint("Tangent", 35, 1, 36, 1))
sketch4.addConstraint(Sketcher.Constraint("Tangent", 36, 2, 37, 2))
sketch4.addConstraint(Sketcher.Constraint("Tangent", 37, 1, 38, 1))
sketch4.addConstraint(Sketcher.Constraint("Tangent", 38, 2, 39, 2))
sketch4.addConstraint(Sketcher.Constraint("Tangent", 39, 1, 40, 1))
sketch4.addConstraint(Sketcher.Constraint("Tangent", 40, 2, 41, 2))
sketch4.addConstraint(Sketcher.Constraint("Tangent", 41, 1, 42, 1))
sketch4.addConstraint(Sketcher.Constraint("Tangent", 42, 2, 43, 2))
sketch4.addConstraint(Sketcher.Constraint("Tangent", 43, 1, 44, 1))
sketch4.addConstraint(Sketcher.Constraint("Tangent", 44, 2, 45, 2))
sketch4.addConstraint(Sketcher.Constraint("Tangent", 45, 1, 46, 1))
sketch4.addConstraint(Sketcher.Constraint("Tangent", 46, 2, 47, 2))
sketch4.addConstraint(Sketcher.Constraint("Tangent", 47, 1, 48, 1))
sketch4.addConstraint(Sketcher.Constraint("Tangent", 48, 2, 49, 2))
sketch4.addConstraint(Sketcher.Constraint("Tangent", 49, 1, 50, 1))
sketch4.addConstraint(Sketcher.Constraint("Tangent", 50, 2, 51, 1))
sketch4.addConstraint(Sketcher.Constraint("Tangent", 51, 2, 52, 1))
sketch4.addConstraint(Sketcher.Constraint("Tangent", 52, 2, 53, 1))
sketch4.addConstraint(Sketcher.Constraint("Tangent", 53, 2, 54, 1))
sketch4.addConstraint(Sketcher.Constraint("Tangent", 54, 2, 55, 1))
sketch4.addConstraint(Sketcher.Constraint("Tangent", 55, 2, 32, 1))
sketch4.addConstraint(Sketcher.Constraint("Horizontal", 0))
sketch4.addConstraint(Sketcher.Constraint("Vertical", 2))
sketch4.addConstraint(Sketcher.Constraint("Horizontal", 4))
sketch4.addConstraint(Sketcher.Constraint("Vertical", 6))
sketch4.addConstraint(Sketcher.Constraint("Vertical", 8))
sketch4.addConstraint(Sketcher.Constraint("Horizontal", 10))
sketch4.addConstraint(Sketcher.Constraint("Vertical", 12))
sketch4.addConstraint(Sketcher.Constraint("Horizontal", 14))
sketch4.addConstraint(Sketcher.Constraint("Vertical", 16))
sketch4.addConstraint(Sketcher.Constraint("Horizontal", 18))
sketch4.addConstraint(Sketcher.Constraint("Vertical", 20))
sketch4.addConstraint(Sketcher.Constraint("Horizontal", 22))
sketch4.addConstraint(Sketcher.Constraint("Vertical", 24))
sketch4.addConstraint(Sketcher.Constraint("Horizontal", 26))
sketch4.addConstraint(Sketcher.Constraint("Vertical", 28))
sketch4.addConstraint(Sketcher.Constraint("Horizontal", 30))
sketch4.addConstraint(Sketcher.Constraint("Vertical", 32))
sketch4.addConstraint(Sketcher.Constraint("Horizontal", 34))
sketch4.addConstraint(Sketcher.Constraint("Vertical", 36))
sketch4.addConstraint(Sketcher.Constraint("Horizontal", 38))
sketch4.addConstraint(Sketcher.Constraint("Vertical", 40))
sketch4.addConstraint(Sketcher.Constraint("Horizontal", 42))
sketch4.addConstraint(Sketcher.Constraint("Vertical", 44))
sketch4.addConstraint(Sketcher.Constraint("Horizontal", 46))
sketch4.addConstraint(Sketcher.Constraint("Vertical", 48))
sketch4.addConstraint(Sketcher.Constraint("Horizontal", 50))
sketch4.addConstraint(Sketcher.Constraint("Vertical", 52))
sketch4.addConstraint(Sketcher.Constraint("Horizontal", 54))
sketch4.addConstraint(Sketcher.Constraint("Equal", 1, 3))
sketch4.addConstraint(Sketcher.Constraint("Equal", 3, 5))
sketch4.addConstraint(Sketcher.Constraint("Equal", 5, 7))
sketch4.addConstraint(Sketcher.Constraint("Equal", 7, 9))
sketch4.addConstraint(Sketcher.Constraint("Equal", 9, 11))
sketch4.addConstraint(Sketcher.Constraint("Equal", 11, 13))
sketch4.addConstraint(Sketcher.Constraint("Equal", 13, 15))
sketch4.addConstraint(Sketcher.Constraint("Equal", 15, 17))
sketch4.addConstraint(Sketcher.Constraint("Equal", 17, 19))
sketch4.addConstraint(Sketcher.Constraint("Equal", 19, 21))
sketch4.addConstraint(Sketcher.Constraint("Equal", 21, 23))
sketch4.addConstraint(Sketcher.Constraint("Equal", 23, 25))
sketch4.addConstraint(Sketcher.Constraint("Equal", 25, 27))
sketch4.addConstraint(Sketcher.Constraint("Equal", 27, 29))
sketch4.addConstraint(Sketcher.Constraint("Equal", 29, 31))
sketch4.addConstraint(Sketcher.Constraint("Equal", 31, 33))
sketch4.addConstraint(Sketcher.Constraint("Equal", 33, 35))
sketch4.addConstraint(Sketcher.Constraint("Equal", 35, 37))
sketch4.addConstraint(Sketcher.Constraint("Equal", 37, 39))
sketch4.addConstraint(Sketcher.Constraint("Equal", 39, 41))
sketch4.addConstraint(Sketcher.Constraint("Equal", 41, 43))
sketch4.addConstraint(Sketcher.Constraint("Equal", 43, 45))
sketch4.addConstraint(Sketcher.Constraint("Equal", 45, 47))
sketch4.addConstraint(Sketcher.Constraint("Equal", 47, 49))
sketch4.addConstraint(Sketcher.Constraint("Equal", 49, 51))
sketch4.addConstraint(Sketcher.Constraint("Equal", 51, 53))
sketch4.addConstraint(Sketcher.Constraint("Equal", 53, 55))
sketch4.addConstraint(Sketcher.Constraint("Symmetric", 11, 3, 17, 3, -2))
sketch4.addConstraint(Sketcher.Constraint("Symmetric", 23, 3, 29, 3, -2))
sketch4.addConstraint(Sketcher.Constraint("Symmetric", 39, 3, 45, 3, -2))
sketch4.addConstraint(Sketcher.Constraint("Symmetric", 35, 3, 49, 3, -2))
sketch4.addConstraint(Sketcher.Constraint("Vertical", 13, 3, 33, 3))
sketch4.addConstraint(Sketcher.Constraint("Vertical", 31, 3, 35, 3))
sketch4.addConstraint(Sketcher.Constraint("Vertical", 29, 3, 39, 3))
sketch4.addConstraint(Sketcher.Constraint("Vertical", 21, 3, 47, 3))
sketch4.addConstraint(Sketcher.Constraint("Vertical", 17, 3, 51, 3))
sketch4.addConstraint(Sketcher.Constraint("Equal", 50, 12))
sketch4.addConstraint(Sketcher.Constraint("Equal", 16, 32))
sketch4.addConstraint(Sketcher.Constraint("Equal", 20, 36))
sketch4.addConstraint(Sketcher.Constraint("Equal", 28, 40))
sketch4.addConstraint(Sketcher.Constraint("Radius", 1, Q("0.8 mm")))
sketch4.addConstraint(Sketcher.Constraint("DistanceX", 0, 1, 0, 2, Q("33.4 mm")))
sketch4.addConstraint(Sketcher.Constraint("DistanceX", 10, 2, 10, 1, Q("2.4 mm")))
sketch4.addConstraint(Sketcher.Constraint("DistanceX", 14, 1, 14, 2, Q("9.4 mm")))
sketch4.addConstraint(Sketcher.Constraint("DistanceX", 22, 1, 22, 2, Q("4.4 mm")))
sketch4.addConstraint(Sketcher.Constraint("DistanceY", 2, 2, 2, 1, Q("18.4 mm")))
sketch4.addConstraint(Sketcher.Constraint("DistanceY", 8, 2, 8, 1, Q("1.4 mm")))
sketch4.addConstraint(Sketcher.Constraint("DistanceY", 24, 2, 24, 1, Q("8.4 mm")))
sketch4.addConstraint(Sketcher.Constraint("DistanceX", -1, 1, 1, 3, Q("16.7 mm")))
sketch4.addConstraint(Sketcher.Constraint("DistanceY", -1, 1, 1, 3, Q("44.203271 mm")))
sketch4.addConstraint(Sketcher.Constraint("DistanceY", -1, 1, 9, 3, Q("15.303271 mm")))
sketch4.addConstraint(Sketcher.Constraint("DistanceY", -1, 1, 33, 3, Q("56.303271 mm")))
sketch4.setExpression("Constraints[124]", "Params.sketch4_radius")
sketch4.setExpression("Constraints[125]", "Params.sketch4_width")
sketch4.setExpression("Constraints[126]", "Params.sketch4_width2")
sketch4.setExpression("Constraints[127]", "Params.sketch4_width3")
sketch4.setExpression("Constraints[128]", "Params.sketch4_width4")
pocket3 = body.newObject("PartDesign::Pocket", "Pocket002")
pocket3.Profile = sketch4
pocket3.Type = "ThroughAll"
pocket3.Reversed = True

doc.recompute()
